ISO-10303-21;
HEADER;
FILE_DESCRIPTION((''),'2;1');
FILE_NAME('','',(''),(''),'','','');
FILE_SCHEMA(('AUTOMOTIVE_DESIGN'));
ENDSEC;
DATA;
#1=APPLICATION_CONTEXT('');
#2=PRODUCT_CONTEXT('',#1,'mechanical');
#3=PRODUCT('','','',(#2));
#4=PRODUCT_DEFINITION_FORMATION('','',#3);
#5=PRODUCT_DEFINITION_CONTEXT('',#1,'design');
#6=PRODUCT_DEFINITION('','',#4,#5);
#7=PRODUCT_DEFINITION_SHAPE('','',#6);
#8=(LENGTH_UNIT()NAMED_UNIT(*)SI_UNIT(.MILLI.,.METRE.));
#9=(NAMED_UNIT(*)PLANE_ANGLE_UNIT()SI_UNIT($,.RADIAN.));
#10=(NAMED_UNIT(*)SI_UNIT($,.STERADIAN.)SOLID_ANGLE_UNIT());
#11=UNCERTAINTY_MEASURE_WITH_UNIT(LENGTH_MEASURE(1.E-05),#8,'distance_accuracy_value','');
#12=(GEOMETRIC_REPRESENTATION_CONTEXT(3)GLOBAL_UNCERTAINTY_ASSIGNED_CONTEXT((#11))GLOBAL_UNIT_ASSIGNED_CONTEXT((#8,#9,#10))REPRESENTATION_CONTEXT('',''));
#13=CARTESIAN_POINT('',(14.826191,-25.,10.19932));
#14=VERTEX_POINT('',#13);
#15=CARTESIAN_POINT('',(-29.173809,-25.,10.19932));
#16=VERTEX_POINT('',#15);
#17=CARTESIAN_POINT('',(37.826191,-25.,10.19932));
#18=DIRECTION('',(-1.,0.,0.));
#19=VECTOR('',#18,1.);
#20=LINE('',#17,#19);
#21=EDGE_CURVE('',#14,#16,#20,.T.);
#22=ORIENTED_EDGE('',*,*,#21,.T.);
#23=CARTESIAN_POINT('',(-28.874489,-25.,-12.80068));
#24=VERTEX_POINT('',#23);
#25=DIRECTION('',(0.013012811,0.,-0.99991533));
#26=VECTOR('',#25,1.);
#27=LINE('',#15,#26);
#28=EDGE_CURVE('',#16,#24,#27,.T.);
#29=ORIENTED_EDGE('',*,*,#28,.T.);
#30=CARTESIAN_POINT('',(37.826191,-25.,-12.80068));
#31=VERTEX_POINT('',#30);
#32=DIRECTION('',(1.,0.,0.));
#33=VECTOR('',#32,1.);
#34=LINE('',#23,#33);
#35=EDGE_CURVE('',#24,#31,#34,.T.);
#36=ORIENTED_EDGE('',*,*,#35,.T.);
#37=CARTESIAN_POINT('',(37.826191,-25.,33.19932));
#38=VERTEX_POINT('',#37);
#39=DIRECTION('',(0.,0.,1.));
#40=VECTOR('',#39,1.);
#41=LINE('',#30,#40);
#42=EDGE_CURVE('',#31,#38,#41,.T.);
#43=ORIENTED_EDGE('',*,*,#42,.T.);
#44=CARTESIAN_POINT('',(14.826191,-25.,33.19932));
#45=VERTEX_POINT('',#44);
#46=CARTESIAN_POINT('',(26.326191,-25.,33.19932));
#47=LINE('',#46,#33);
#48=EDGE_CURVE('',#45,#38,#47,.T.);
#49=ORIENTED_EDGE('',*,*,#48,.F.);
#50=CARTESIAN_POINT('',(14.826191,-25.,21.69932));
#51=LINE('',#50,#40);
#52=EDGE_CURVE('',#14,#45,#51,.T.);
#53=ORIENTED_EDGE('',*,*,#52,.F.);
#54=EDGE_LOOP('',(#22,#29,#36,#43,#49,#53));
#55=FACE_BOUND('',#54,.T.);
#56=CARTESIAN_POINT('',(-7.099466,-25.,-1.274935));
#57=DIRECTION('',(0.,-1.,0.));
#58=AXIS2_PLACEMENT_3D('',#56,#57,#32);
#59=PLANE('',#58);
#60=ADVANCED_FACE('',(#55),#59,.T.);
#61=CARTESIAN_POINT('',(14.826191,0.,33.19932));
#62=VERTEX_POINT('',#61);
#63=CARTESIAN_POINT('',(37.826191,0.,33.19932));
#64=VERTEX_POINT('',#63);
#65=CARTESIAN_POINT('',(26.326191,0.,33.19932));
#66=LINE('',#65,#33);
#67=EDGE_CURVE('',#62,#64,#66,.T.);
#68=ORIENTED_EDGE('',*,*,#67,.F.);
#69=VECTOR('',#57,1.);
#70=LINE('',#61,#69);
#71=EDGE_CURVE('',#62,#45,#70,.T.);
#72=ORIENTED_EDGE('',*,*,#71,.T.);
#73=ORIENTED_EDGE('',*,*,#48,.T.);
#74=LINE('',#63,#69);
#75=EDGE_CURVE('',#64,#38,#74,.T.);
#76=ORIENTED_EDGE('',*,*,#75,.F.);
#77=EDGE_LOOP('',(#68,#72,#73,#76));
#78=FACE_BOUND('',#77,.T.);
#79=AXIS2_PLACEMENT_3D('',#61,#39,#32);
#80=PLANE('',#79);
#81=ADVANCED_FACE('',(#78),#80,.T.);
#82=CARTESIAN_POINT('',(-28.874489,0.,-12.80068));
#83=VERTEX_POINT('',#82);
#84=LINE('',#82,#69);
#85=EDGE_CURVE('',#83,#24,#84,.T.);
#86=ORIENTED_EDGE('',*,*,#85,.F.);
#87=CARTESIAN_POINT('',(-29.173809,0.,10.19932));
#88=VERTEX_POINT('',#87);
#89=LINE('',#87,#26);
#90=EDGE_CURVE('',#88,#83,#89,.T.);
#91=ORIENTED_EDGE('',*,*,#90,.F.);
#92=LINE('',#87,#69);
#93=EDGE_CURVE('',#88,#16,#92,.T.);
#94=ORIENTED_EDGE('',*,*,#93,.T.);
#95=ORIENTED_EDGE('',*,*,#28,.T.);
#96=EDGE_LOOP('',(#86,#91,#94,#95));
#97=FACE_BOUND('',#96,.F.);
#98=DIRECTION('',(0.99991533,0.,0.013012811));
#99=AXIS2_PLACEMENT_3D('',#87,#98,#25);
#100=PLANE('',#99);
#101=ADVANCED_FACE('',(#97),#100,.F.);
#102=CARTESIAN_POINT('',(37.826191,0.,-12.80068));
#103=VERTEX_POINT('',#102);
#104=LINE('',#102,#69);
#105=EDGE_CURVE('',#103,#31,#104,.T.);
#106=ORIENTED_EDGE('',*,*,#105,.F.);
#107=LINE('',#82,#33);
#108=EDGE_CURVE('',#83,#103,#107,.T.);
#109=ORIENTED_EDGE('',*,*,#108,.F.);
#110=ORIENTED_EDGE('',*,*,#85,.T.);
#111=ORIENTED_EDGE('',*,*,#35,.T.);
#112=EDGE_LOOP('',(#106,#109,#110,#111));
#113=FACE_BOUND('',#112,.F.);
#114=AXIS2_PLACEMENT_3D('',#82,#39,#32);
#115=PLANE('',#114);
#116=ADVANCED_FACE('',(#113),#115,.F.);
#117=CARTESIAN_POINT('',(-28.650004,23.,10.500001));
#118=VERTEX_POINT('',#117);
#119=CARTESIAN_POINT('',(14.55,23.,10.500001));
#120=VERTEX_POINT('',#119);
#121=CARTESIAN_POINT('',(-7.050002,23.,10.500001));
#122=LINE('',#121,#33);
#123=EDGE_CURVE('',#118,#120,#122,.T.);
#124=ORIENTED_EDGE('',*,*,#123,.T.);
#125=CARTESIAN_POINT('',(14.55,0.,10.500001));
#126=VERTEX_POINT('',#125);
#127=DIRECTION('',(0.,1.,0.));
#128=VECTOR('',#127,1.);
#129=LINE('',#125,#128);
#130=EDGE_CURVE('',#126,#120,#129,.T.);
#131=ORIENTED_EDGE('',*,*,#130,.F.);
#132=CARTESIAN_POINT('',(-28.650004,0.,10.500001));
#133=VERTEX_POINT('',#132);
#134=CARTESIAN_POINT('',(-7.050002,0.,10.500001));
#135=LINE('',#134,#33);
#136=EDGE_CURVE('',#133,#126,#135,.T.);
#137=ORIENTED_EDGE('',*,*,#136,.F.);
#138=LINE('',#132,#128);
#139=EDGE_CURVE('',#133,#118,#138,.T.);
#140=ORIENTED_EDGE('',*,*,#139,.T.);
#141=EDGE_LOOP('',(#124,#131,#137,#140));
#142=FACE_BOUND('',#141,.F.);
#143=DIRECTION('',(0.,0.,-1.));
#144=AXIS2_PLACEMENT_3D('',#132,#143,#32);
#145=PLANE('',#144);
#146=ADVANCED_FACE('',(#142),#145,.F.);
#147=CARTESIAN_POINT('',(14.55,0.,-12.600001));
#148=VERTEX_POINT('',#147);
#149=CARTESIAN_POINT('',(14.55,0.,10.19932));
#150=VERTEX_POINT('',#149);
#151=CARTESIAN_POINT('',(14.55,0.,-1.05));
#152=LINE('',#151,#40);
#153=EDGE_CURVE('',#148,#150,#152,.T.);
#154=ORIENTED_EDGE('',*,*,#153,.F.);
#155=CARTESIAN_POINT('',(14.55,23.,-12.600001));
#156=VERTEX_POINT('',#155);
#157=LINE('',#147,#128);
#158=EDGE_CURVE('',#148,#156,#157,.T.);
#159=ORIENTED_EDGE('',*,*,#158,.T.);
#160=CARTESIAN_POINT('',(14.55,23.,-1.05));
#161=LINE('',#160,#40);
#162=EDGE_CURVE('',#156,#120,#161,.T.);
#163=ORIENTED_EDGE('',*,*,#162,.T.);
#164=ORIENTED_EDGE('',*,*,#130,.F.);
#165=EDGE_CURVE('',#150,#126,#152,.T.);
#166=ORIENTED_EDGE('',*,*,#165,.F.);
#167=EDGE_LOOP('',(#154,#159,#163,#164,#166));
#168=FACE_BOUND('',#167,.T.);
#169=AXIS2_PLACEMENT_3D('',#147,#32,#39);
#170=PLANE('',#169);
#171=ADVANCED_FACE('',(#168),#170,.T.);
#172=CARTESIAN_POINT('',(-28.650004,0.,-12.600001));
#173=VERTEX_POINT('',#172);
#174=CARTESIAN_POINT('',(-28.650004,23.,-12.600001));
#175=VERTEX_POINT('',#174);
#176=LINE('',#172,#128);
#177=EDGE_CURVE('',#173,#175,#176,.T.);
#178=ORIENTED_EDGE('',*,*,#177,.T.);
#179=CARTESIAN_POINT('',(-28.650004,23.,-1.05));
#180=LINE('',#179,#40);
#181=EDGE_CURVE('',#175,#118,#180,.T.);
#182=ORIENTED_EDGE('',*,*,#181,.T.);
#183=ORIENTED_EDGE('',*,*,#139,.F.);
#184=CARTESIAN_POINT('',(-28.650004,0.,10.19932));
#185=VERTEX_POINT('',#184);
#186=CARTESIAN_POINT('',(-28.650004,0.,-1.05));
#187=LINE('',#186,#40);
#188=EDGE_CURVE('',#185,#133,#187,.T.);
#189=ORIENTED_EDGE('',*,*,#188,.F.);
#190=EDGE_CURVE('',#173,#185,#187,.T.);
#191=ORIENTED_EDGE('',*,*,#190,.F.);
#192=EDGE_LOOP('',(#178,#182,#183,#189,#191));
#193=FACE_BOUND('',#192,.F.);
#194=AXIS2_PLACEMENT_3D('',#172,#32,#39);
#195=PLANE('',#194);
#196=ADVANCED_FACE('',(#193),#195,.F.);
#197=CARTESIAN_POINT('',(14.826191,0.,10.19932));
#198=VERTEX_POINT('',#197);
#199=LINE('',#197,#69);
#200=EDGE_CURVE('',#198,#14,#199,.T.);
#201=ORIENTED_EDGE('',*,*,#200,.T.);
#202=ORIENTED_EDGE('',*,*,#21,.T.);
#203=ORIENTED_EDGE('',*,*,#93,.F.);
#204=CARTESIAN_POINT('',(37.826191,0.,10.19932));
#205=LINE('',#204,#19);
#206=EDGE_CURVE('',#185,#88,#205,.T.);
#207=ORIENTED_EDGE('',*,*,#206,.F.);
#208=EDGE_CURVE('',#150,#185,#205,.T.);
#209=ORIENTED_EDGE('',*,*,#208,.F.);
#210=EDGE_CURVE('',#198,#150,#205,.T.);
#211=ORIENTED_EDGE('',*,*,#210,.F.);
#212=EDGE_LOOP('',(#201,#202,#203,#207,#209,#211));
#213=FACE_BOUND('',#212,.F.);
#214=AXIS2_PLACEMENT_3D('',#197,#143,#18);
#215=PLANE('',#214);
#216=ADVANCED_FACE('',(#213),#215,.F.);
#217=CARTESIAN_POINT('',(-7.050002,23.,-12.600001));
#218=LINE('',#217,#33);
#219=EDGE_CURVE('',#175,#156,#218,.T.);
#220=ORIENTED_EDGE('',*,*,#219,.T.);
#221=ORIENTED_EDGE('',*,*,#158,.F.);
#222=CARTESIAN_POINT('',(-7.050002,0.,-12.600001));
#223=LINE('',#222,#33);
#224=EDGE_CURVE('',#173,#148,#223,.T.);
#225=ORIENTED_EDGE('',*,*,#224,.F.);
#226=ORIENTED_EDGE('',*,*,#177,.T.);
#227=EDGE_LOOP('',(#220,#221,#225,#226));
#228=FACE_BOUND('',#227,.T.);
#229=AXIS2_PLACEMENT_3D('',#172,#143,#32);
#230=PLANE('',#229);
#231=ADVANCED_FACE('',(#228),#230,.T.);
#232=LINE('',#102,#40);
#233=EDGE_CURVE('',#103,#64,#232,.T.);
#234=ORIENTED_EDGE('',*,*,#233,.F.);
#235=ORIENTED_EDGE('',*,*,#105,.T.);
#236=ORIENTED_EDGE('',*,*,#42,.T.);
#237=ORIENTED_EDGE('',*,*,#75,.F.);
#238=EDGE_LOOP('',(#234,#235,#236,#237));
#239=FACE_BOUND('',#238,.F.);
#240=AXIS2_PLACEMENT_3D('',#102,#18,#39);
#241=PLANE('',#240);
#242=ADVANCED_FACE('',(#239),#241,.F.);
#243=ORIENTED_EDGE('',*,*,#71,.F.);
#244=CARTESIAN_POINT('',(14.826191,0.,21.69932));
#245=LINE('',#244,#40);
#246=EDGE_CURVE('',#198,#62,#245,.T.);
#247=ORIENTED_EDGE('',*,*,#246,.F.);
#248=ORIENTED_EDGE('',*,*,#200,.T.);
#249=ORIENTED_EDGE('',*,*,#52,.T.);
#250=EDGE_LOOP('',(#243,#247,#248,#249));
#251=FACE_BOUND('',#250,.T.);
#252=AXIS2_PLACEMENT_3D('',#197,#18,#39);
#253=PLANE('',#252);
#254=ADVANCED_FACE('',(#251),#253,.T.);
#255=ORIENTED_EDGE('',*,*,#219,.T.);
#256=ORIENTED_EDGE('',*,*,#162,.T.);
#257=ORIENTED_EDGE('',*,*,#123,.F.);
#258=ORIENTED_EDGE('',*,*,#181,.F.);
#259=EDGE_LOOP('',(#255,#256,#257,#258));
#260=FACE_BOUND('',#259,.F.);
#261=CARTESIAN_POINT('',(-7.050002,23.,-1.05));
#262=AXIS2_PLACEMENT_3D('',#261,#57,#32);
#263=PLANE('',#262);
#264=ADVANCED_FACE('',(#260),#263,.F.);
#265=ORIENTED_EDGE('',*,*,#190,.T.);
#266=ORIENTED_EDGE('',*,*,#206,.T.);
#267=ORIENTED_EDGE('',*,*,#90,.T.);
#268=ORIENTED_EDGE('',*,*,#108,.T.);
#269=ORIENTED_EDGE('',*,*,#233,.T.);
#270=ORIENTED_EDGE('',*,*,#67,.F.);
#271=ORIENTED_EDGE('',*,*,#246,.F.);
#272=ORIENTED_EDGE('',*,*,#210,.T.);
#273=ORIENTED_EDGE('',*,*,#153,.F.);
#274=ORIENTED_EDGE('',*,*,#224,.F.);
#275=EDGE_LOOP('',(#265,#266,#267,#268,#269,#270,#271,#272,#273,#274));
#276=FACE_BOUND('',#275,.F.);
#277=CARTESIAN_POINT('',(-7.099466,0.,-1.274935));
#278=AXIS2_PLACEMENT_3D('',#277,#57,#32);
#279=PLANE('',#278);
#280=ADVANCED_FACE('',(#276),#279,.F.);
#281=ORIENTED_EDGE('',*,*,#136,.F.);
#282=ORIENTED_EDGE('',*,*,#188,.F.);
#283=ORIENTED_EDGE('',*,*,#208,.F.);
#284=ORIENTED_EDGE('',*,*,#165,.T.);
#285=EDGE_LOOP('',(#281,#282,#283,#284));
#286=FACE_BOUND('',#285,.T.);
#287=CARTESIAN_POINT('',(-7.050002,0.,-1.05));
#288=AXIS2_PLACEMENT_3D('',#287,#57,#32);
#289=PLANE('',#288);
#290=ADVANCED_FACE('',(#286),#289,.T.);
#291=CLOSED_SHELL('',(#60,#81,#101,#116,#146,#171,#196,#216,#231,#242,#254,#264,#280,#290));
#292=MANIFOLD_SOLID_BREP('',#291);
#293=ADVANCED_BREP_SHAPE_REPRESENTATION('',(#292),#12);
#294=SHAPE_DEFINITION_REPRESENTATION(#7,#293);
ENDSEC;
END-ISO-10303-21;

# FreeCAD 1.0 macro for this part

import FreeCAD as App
import Part
import Sketcher
from FreeCAD import Vector
Q = App.Units.Quantity

doc = App.newDocument("Part")
params = doc.addObject("Spreadsheet::Sheet", "Params")
for row, (alias, value) in enumerate([
    ("sketch1_width", "23 mm"),
    ("sketch1_width2", "44 mm"),
    ("sketch1_height", "46 mm"),
    ("pad1_length", "25 mm"),
    ("sketch2_height", "23.100001 mm"),
    ("pad2_length", "23 mm"),
], start=1):
    params.set(f"A{row}", alias)
    params.set(f"B{row}", "=" + value)
    params.setAlias(f"B{row}", alias)

body = doc.addObject("PartDesign::Body", "Body")

sketch1 = body.newObject("Sketcher::SketchObject", "Sketch")
sketch1.AttachmentSupport = (doc.getObject("XZ_Plane"), [""])
sketch1.MapMode = "FlatFace"
sketch1.addGeometry([
    Part.LineSegment(Vector(-29, 10, 0), Vector(-29, -13, 0)),
    Part.LineSegment(Vector(-29, -13, 0), Vector(38, -13, 0)),
    Part.LineSegment(Vector(38, -13, 0), Vector(38, 33, 0)),
    Part.LineSegment(Vector(38, 33, 0), Vector(15, 33, 0)),
    Part.LineSegment(Vector(15, 33, 0), Vector(15, 10, 0)),
    Part.LineSegment(Vector(15, 10, 0), Vector(-29, 10, 0)),
], False)
sketch1.addConstraint([
    Sketcher.Constraint("Coincident", 0, 2, 1, 1),
    Sketcher.Constraint("Coincident", 1, 2, 2, 1),
    Sketcher.Constraint("Coincident", 2, 2, 3, 1),
    Sketcher.Constraint("Coincident", 3, 2, 4, 1),
    Sketcher.Constraint("Coincident", 4, 2, 5, 1),
    Sketcher.Constraint("Coincident", 5, 2, 0, 1),
    Sketcher.Constraint("Horizontal", 1),
    Sketcher.Constraint("Vertical", 2),
    Sketcher.Constraint("Horizontal", 3),
    Sketcher.Constraint("Vertical", 4),
    Sketcher.Constraint("Horizontal", 5),
    Sketcher.Constraint("Equal", 3, 4),
    Sketcher.Constraint("DistanceX", 3, 2, 3, 1, Q("23 mm")),
    Sketcher.Constraint("DistanceX", 5, 2, 5, 1, Q("44 mm")),
    Sketcher.Constraint("DistanceY", 2, 1, 2, 2, Q("46 mm")),
    Sketcher.Constraint("DistanceX", 1, 1, 1, 2, Q("66.70068 mm")),
    Sketcher.Constraint("DistanceX", 0, 2, -1, 1, Q("28.874489 mm")),
    Sketcher.Constraint("DistanceY", 0, 2, -1, 1, Q("12.80068 mm")),
])
sketch1.setExpression("Constraints[12]", "Params.sketch1_width")
sketch1.setExpression("Constraints[13]", "Params.sketch1_width2")
sketch1.setExpression("Constraints[14]", "Params.sketch1_height")
pad1 = body.newObject("PartDesign::Pad", "Pad")
pad1.Profile = sketch1
pad1.setExpression("Length", "Params.pad1_length")

sketch2 = body.newObject("Sketcher::SketchObject", "Sketch001")
sketch2.AttachmentSupport = (doc.getObject("XZ_Plane"), [""])
sketch2.MapMode = "FlatFace"
sketch2.addGeometry([
    Part.LineSegment(Vector(-29, 11, 0), Vector(-29, -13, 0)),
    Part.LineSegment(Vector(-29, -13, 0), Vector(15, -13, 0)),
    Part.LineSegment(Vector(15, -13, 0), Vector(15, 11, 0)),
    Part.LineSegment(Vector(15, 11, 0), Vector(-29, 11, 0)),
], False)
sketch2.addConstraint([
    Sketcher.Constraint("Coincident", 0, 2, 1, 1),
    Sketcher.Constraint("Coincident", 1, 2, 2, 1),
    Sketcher.Constraint("Coincident", 2, 2, 3, 1),
    Sketcher.Constraint("Coincident", 3, 2, 0, 1),
    Sketcher.Constraint("Vertical", 0),
    Sketcher.Constraint("Horizontal", 1),
    Sketcher.Constraint("Vertical", 2),
    Sketcher.Constraint("Horizontal", 3),
    Sketcher.Constraint("DistanceY", 0, 2, 0, 1, Q("23.100001 mm")),
    Sketcher.Constraint("DistanceY", 0, 2, -1, 1, Q("12.600001 mm")),
    Sketcher.Constraint("DistanceX", -1, 1, 1, 2, Q("14.55 mm")),
    Sketcher.Constraint("DistanceX", 1, 1, 1, 2, Q("43.200003 mm")),
])
sketch2.setExpression("Constraints[8]", "Params.sketch2_height")
pad2 = body.newObject("PartDesign::Pad", "Pad001")
pad2.Profile = sketch2
pad2.setExpression("Length", "Params.pad2_length")
pad2.Reversed = True

doc.recompute()
